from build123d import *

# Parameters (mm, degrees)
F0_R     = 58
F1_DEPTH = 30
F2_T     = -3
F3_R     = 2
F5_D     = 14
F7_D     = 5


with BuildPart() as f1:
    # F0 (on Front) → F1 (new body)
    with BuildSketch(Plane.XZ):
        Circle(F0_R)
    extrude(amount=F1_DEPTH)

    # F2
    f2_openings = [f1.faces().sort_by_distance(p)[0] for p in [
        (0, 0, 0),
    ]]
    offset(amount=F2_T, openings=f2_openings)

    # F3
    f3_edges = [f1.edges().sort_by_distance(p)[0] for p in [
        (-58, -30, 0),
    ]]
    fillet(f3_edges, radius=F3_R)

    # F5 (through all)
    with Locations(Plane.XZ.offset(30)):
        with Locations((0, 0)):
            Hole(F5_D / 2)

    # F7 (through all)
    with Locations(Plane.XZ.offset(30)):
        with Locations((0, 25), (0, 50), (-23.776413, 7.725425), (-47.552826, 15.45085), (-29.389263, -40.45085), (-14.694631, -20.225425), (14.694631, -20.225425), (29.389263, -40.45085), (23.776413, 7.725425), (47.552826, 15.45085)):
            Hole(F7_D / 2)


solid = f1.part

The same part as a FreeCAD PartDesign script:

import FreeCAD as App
import Part
import Sketcher

V = App.Vector
Q = App.Units.Quantity


def edges_at(feature, points):
    """Names of the edges that pass closest to the given points."""
    edges = feature.Shape.Edges
    near = lambda p: min(range(len(edges)), key=lambda i: edges[i].distToShape(Part.Vertex(*p))[0])
    return sorted({f"Edge{near(p) + 1}" for p in points})


def faces_at(feature, points):
    """Names of the faces that lie closest to the given points."""
    faces = feature.Shape.Faces
    near = lambda p: min(range(len(faces)), key=lambda i: faces[i].distToShape(Part.Vertex(*p))[0])
    return sorted({f"Face{near(p) + 1}" for p in points})

doc = App.newDocument("Part")
params = doc.addObject("Spreadsheet::Sheet", "Params")
for row, (alias, value) in enumerate([
    ("sketch1_diameter", "116 mm"),
    ("pad1_length", "30 mm"),
    ("thickness_wall", "3 mm"),
    ("fillet_radius", "2 mm"),
    ("sketch2_diameter", "14 mm"),
    ("hole_diameter", "14 mm"),
    ("sketch3_diameter", "5 mm"),
    ("hole2_diameter", "5 mm"),
], start=1):
    params.set(f"A{row}", alias)
    params.set(f"B{row}", "=" + value)
    params.setAlias(f"B{row}", alias)

body = doc.addObject("PartDesign::Body", "Body")

sketch1 = body.newObject("Sketcher::SketchObject", "Sketch")
sketch1.AttachmentSupport = (doc.getObject("XZ_Plane"), [""])
sketch1.MapMode = "FlatFace"
sketch1.addGeometry(Part.Circle(V(0, 0, 0), V(0, 0, 1), 58), False)
sketch1.addConstraint([
    Sketcher.Constraint("Coincident", 0, 3, -1, 1),
    Sketcher.Constraint("Diameter", 0, Q("116 mm")),
])
sketch1.setExpression("Constraints[1]", "Params.sketch1_diameter")
pad1 = body.newObject("PartDesign::Pad", "Pad")
pad1.Profile = sketch1
pad1.setExpression("Length", "Params.pad1_length")
doc.recompute()

thickness = body.newObject("PartDesign::Thickness", "Thickness")
thickness.Base = (pad1, faces_at(pad1, [(0, 0, 0)]))
thickness.setExpression("Value", "Params.thickness_wall")
thickness.Reversed = True
thickness.Join = "Arc"
doc.recompute()

fillet = body.newObject("PartDesign::Fillet", "Fillet")
fillet.Base = (thickness, edges_at(thickness, [(-58, -30, 0)]))
fillet.setExpression("Radius", "Params.fillet_radius")

sketch2 = body.newObject("Sketcher::SketchObject", "Sketch001")
sketch2.AttachmentSupport = (doc.getObject("XZ_Plane"), [""])
sketch2.MapMode = "FlatFace"
sketch2.AttachmentOffset = App.Placement(V(0, 0, 30), App.Rotation())
sketch2.addGeometry(Part.Circle(V(0, 0, 0), V(0, 0, 1), 7), False)
sketch2.addConstraint([
    Sketcher.Constraint("Coincident", 0, 3, -1, 1),
    Sketcher.Constraint("Diameter", 0, Q("14 mm")),
])
sketch2.setExpression("Constraints[1]", "Params.sketch2_diameter")
doc.recompute()
hole = body.newObject("PartDesign::Hole", "Hole")
hole.Profile = sketch2
hole.ThreadType = "None"
hole.setExpression("Diameter", "Params.hole_diameter")
hole.DepthType = "ThroughAll"

sketch3 = body.newObject("Sketcher::SketchObject", "Sketch002")
sketch3.AttachmentSupport = (doc.getObject("XZ_Plane"), [""])
sketch3.MapMode = "FlatFace"
sketch3.AttachmentOffset = App.Placement(V(0, 0, 30), App.Rotation())
sketch3.addGeometry([
    Part.Circle(V(0, 25, 0), V(0, 0, 1), 2.5),
    Part.Circle(V(0, 50, 0), V(0, 0, 1), 2.5),
    Part.Circle(V(-23.776413, 7.725425, 0), V(0, 0, 1), 2.5),
    Part.Circle(V(-47.552826, 15.45085, 0), V(0, 0, 1), 2.5),
    Part.Circle(V(-29.389263, -40.45085, 0), V(0, 0, 1), 2.5),
    Part.Circle(V(-14.694631, -20.225425, 0), V(0, 0, 1), 2.5),
    Part.Circle(V(14.694631, -20.225425, 0), V(0, 0, 1), 2.5),
    Part.Circle(V(29.389263, -40.45085, 0), V(0, 0, 1), 2.5),
    Part.Circle(V(23.776413, 7.725425, 0), V(0, 0, 1), 2.5),
    Part.Circle(V(47.552826, 15.45085, 0), V(0, 0, 1), 2.5),
], False)
sketch3.addConstraint([
    Sketcher.Constraint("Equal", 0, 1),
    Sketcher.Constraint("Equal", 1, 2),
    Sketcher.Constraint("Equal", 2, 3),
    Sketcher.Constraint("Equal", 3, 4),
    Sketcher.Constraint("Equal", 4, 5),
    Sketcher.Constraint("Equal", 5, 6),
    Sketcher.Constraint("Equal", 6, 7),
    Sketcher.Constraint("Equal", 7, 8),
    Sketcher.Constraint("Equal", 8, 9),
    Sketcher.Constraint("Symmetric", 5, 3, 6, 3, -2),
    Sketcher.Constraint("Symmetric", 4, 3, 7, 3, -2),
    Sketcher.Constraint("Symmetric", 2, 3, 8, 3, -2),
    Sketcher.Constraint("Symmetric", 3, 3, 9, 3, -2),
    Sketcher.Constraint("PointOnObject", 0, 3, -2),
    Sketcher.Constraint("PointOnObject", 1, 3, -2),
    Sketcher.Constraint("Diameter", 0, Q("5 mm")),
    Sketcher.Constraint("DistanceY", -1, 1, 0, 3, Q("25 mm")),
    Sketcher.Constraint("DistanceY", -1, 1, 1, 3, Q("50 mm")),
    Sketcher.Constraint("DistanceY", 4, 3, 3, 3, Q("55.9017 mm")),
    Sketcher.Constraint("DistanceY", -1, 1, 3, 3, Q("15.45085 mm")),
    Sketcher.Constraint("DistanceX", 5, 3, -1, 1, Q("14.694631 mm")),
    Sketcher.Constraint("DistanceX", 4, 3, 2, 3, Q("5.61285 mm")),
    Sketcher.Constraint("DistanceY", 5, 3, 2, 3, Q("27.95085 mm")),
    Sketcher.Constraint("DistanceX", 2, 3, -1, 1, Q("23.776413 mm")),
    Sketcher.Constraint("DistanceY", -1, 1, 2, 3, Q("7.725425 mm")),
    Sketcher.Constraint("DistanceX", 3, 3, -1, 1, Q("47.552826 mm")),
])
sketch3.setExpression("Constraints[15]", "Params.sketch3_diameter")
doc.recompute()
hole2 = body.newObject("PartDesign::Hole", "Hole001")
hole2.Profile = sketch3
hole2.ThreadType = "None"
hole2.setExpression("Diameter", "Params.hole2_diameter")
hole2.DepthType = "ThroughAll"

doc.recompute()
